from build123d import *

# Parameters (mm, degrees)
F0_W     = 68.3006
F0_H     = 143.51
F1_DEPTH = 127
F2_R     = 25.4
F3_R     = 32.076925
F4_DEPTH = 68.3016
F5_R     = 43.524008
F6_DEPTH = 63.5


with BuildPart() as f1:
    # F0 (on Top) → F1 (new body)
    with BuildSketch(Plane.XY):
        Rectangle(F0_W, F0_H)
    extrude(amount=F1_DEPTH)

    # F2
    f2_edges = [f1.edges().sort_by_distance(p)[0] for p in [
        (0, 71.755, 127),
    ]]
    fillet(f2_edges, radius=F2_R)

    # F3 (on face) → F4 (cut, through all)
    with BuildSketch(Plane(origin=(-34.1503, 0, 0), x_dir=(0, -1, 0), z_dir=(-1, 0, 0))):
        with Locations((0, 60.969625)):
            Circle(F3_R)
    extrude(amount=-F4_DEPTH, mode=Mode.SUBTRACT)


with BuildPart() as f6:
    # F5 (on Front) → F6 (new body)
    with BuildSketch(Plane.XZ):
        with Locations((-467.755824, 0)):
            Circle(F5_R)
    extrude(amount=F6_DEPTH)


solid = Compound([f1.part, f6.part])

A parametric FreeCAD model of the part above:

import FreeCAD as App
import Part
import Sketcher
Q = App.Units.Quantity


def edges_at(feature, points):
    """Names of the edges that pass closest to the given points."""
    edges = feature.Shape.Edges
    near = lambda p: min(range(len(edges)), key=lambda i: edges[i].distToShape(Part.Vertex(*p))[0])
    return sorted({f"Edge{near(p) + 1}" for p in points})

doc = App.newDocument("Part")
body = doc.addObject("PartDesign::Body", "Body")

# Sketch on XY plane
sketch1 = body.newObject("Sketcher::SketchObject", "Sketch")
sketch1.AttachmentSupport = (doc.getObject("XY_Plane"), [""])
sketch1.MapMode = "FlatFace"
sketch1.addGeometry([
    Part.LineSegment(App.Vector(-34, 72, 0), App.Vector(-34, -72, 0)),
    Part.LineSegment(App.Vector(-34, -72, 0), App.Vector(34, -72, 0)),
    Part.LineSegment(App.Vector(34, -72, 0), App.Vector(34, 72, 0)),
    Part.LineSegment(App.Vector(34, 72, 0), App.Vector(-34, 72, 0)),
], False)
sketch1.addConstraint([
    Sketcher.Constraint("Coincident", 0, 2, 1, 1),
    Sketcher.Constraint("Coincident", 1, 2, 2, 1),
    Sketcher.Constraint("Coincident", 2, 2, 3, 1),
    Sketcher.Constraint("Coincident", 3, 2, 0, 1),
    Sketcher.Constraint("Vertical", 0),
    Sketcher.Constraint("Horizontal", 1),
    Sketcher.Constraint("Vertical", 2),
    Sketcher.Constraint("Horizontal", 3),
    Sketcher.Constraint("Symmetric", 0, 2, 2, 2, -1, 1),
    Sketcher.Constraint("DistanceY", 0, 2, 0, 1, Q("5.65 in")),
    Sketcher.Constraint("DistanceX", 1, 1, 1, 2, Q("2.689 in")),
])
pad1 = body.newObject("PartDesign::Pad", "Pad")
pad1.Profile = sketch1
pad1.Length = Q("5 in")
doc.recompute()

fillet = body.newObject("PartDesign::Fillet", "Fillet")
fillet.Base = (pad1, edges_at(pad1, [(0, 71.755, 127)]))
fillet.Radius = Q("1 in")

# Sketch on YZ plane
sketch2 = body.newObject("Sketcher::SketchObject", "Sketch001")
sketch2.AttachmentSupport = (doc.getObject("YZ_Plane"), [""])
sketch2.MapMode = "FlatFace"
sketch2.AttachmentOffset = App.Placement(App.Vector(0, 0, -1.3445 * 25.4), App.Rotation())
sketch2.addGeometry(Part.Circle(App.Vector(0, 61, 0), App.Vector(0, 0, 1), 32), False)
sketch2.addConstraint([
    Sketcher.Constraint("PointOnObject", 0, 3, -2),
    Sketcher.Constraint("Diameter", 0, 64.15385),
    Sketcher.Constraint("DistanceY", -1, 1, 0, 3, 60.969625),
])
pocket1 = body.newObject("PartDesign::Pocket", "Pocket")
pocket1.Profile = sketch2
pocket1.Type = "ThroughAll"
pocket1.Reversed = True
body2 = doc.addObject("PartDesign::Body", "Body001")

# Sketch on XZ plane
sketch3 = body2.newObject("Sketcher::SketchObject", "Sketch002")
sketch3.AttachmentSupport = (doc.getObject("XZ_Plane001"), [""])
sketch3.MapMode = "FlatFace"
sketch3.addGeometry(Part.Circle(App.Vector(-468, 0, 0), App.Vector(0, 0, 1), 44), False)
sketch3.addConstraint([
    Sketcher.Constraint("PointOnObject", 0, 3, -1),
    Sketcher.Constraint("Diameter", 0, 87.048016),
    Sketcher.Constraint("DistanceX", 0, 3, -1, 1, 467.755824),
])
pad2 = body2.newObject("PartDesign::Pad", "Pad001")
pad2.Profile = sketch3
pad2.Length = Q("2.5 in")

doc.recompute()
